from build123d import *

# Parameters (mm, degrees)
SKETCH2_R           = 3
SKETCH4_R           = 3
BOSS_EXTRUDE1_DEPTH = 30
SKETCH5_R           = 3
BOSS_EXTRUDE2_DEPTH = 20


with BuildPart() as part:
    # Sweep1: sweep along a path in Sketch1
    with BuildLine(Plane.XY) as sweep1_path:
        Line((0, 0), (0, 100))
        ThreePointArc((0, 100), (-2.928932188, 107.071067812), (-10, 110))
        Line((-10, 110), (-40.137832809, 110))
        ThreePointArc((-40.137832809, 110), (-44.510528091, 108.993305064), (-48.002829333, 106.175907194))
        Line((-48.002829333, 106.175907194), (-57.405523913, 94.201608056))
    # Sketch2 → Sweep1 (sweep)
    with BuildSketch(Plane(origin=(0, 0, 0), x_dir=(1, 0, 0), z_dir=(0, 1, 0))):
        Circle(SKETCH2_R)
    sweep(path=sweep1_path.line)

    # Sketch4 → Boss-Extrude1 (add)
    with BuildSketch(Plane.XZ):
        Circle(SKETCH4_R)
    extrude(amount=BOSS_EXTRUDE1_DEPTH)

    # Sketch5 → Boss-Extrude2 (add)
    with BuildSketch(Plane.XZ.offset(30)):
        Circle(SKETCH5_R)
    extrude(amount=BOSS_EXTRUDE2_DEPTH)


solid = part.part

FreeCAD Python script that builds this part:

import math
import FreeCAD as App
import Part
import Sketcher
Q = App.Units.Quantity

doc = App.newDocument("Part")
body = doc.addObject("PartDesign::Body", "Body")

# Sketch on XZ plane
sketch1 = doc.addObject("Sketcher::SketchObject", "Sketch")
body.addObject(sketch1)
sketch1.AttachmentSupport = (doc.XZ_Plane, [""])
sketch1.MapMode = "FlatFace"
sketch1.addGeometry(Part.Circle(App.Vector(0, 0, 0), App.Vector(0, 0, 1), 3), False)
sketch1.addConstraint(Sketcher.Constraint("Coincident", 0, 3, -1, 1))
sketch1.addConstraint(Sketcher.Constraint("Diameter", 0, Q("6 mm")))

# Sketch on XY plane
sketch2 = doc.addObject("Sketcher::SketchObject", "Sketch001")
body.addObject(sketch2)
sketch2.AttachmentSupport = (doc.XY_Plane, [""])
sketch2.MapMode = "FlatFace"
sketch2.addGeometry(Part.LineSegment(App.Vector(0, 0, 0), App.Vector(0, 100, 0)), False)
sketch2.addGeometry(Part.ArcOfCircle(Part.Circle(App.Vector(-10, 100, 0), App.Vector(0, 0, 1), 10), math.radians(0), math.radians(90)), False)
sketch2.addGeometry(Part.LineSegment(App.Vector(-10, 110, 0), App.Vector(-40.137833, 110, 0)), False)
sketch2.addGeometry(Part.ArcOfCircle(Part.Circle(App.Vector(-40.137833, 100, 0), App.Vector(0, 0, 1), 10), math.radians(90), math.radians(141.859591)), False)
sketch2.addGeometry(Part.LineSegment(App.Vector(-48.002829, 106.175907, 0), App.Vector(-57.405524, 94.201608, 0)), False)
sketch2.addConstraint(Sketcher.Constraint("Tangent", 0, 2, 1, 1))
sketch2.addConstraint(Sketcher.Constraint("Tangent", 1, 2, 2, 1))
sketch2.addConstraint(Sketcher.Constraint("Tangent", 2, 2, 3, 1))
sketch2.addConstraint(Sketcher.Constraint("Tangent", 3, 2, 4, 1))
sketch2.addConstraint(Sketcher.Constraint("Vertical", 0))
sketch2.addConstraint(Sketcher.Constraint("Horizontal", 2))
sketch2.addConstraint(Sketcher.Constraint("Coincident", 0, 1, -1, 1))
sketch2.addConstraint(Sketcher.Constraint("Equal", 1, 3))
sketch2.addConstraint(Sketcher.Constraint("Radius", 1, Q("10 mm")))
sketch2.addConstraint(Sketcher.Constraint("DistanceY", 0, 1, 0, 2, Q("100 mm")))
sketch2.addConstraint(Sketcher.Constraint("Distance", 4, Q("15.224799 mm")))
sketch2.addConstraint(Sketcher.Constraint("DistanceY", 4, 2, 3, 2, Q("11.974299 mm")))
sketch2.addConstraint(Sketcher.Constraint("DistanceX", 2, 2, 2, 1, Q("30.137833 mm")))
doc.recompute()

additivepipe = doc.addObject("PartDesign::AdditivePipe", "AdditivePipe")
body.addObject(additivepipe)
additivepipe.Profile = sketch1
additivepipe.Spine = (sketch2, ["Edge1", "Edge2", "Edge3", "Edge4", "Edge5"])

# Sketch on XZ plane
sketch3 = doc.addObject("Sketcher::SketchObject", "Sketch002")
body.addObject(sketch3)
sketch3.AttachmentSupport = (doc.XZ_Plane, [""])
sketch3.MapMode = "FlatFace"
sketch3.addGeometry(Part.Circle(App.Vector(0, 0, 0), App.Vector(0, 0, 1), 3), False)
sketch3.addConstraint(Sketcher.Constraint("Coincident", 0, 3, -1, 1))
sketch3.addConstraint(Sketcher.Constraint("Diameter", 0, Q("6 mm")))
pad1 = doc.addObject("PartDesign::Pad", "Pad")
body.addObject(pad1)
pad1.Profile = sketch3
pad1.Length = 30

# Sketch on XZ plane
sketch4 = doc.addObject("Sketcher::SketchObject", "Sketch003")
body.addObject(sketch4)
sketch4.AttachmentSupport = (doc.XZ_Plane, [""])
sketch4.MapMode = "FlatFace"
sketch4.AttachmentOffset = App.Placement(App.Vector(0, 0, 30), App.Rotation())
sketch4.addGeometry(Part.Circle(App.Vector(0, 0, 0), App.Vector(0, 0, 1), 3), False)
sketch4.addConstraint(Sketcher.Constraint("Coincident", 0, 3, -1, 1))
sketch4.addConstraint(Sketcher.Constraint("Diameter", 0, Q("6 mm")))
pad2 = doc.addObject("PartDesign::Pad", "Pad001")
body.addObject(pad2)
pad2.Profile = sketch4
pad2.Length = 20

doc.recompute()
